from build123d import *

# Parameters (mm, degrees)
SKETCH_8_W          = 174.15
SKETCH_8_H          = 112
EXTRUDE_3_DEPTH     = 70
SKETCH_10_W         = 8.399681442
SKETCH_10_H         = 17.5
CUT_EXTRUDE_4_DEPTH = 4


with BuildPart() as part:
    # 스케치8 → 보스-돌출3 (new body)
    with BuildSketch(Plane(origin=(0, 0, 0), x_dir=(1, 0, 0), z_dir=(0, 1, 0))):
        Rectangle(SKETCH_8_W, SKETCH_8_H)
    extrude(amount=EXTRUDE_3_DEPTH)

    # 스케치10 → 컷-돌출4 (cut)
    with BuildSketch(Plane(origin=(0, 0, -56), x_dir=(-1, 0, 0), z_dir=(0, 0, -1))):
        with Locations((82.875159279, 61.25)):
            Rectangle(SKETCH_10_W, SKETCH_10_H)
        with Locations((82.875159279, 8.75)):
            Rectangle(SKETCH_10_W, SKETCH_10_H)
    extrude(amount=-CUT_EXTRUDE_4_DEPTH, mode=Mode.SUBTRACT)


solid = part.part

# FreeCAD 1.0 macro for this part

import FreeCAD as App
import Part
import Sketcher


def add_polygon(sketch, points):
    """Adds a closed chain of lines whose ends are joined by coincident constraints."""
    first, n = sketch.GeometryCount, len(points)
    for a, b in zip(points, points[1:] + points[:1]):
        sketch.addGeometry(Part.LineSegment(App.Vector(*a, 0), App.Vector(*b, 0)), False)
    for i in range(n):
        sketch.addConstraint(Sketcher.Constraint("Coincident", first + i, 2, first + (i + 1) % n, 1))

doc = App.newDocument("Part")
body = doc.addObject("PartDesign::Body", "Body")

sketch1 = doc.addObject("Sketcher::SketchObject", "Sketch")
body.addObject(sketch1)
sketch1.AttachmentSupport = (doc.XZ_Plane, [""])
sketch1.MapMode = "FlatFace"
add_polygon(sketch1, [(-87, -56), (-87, 56), (87, 56), (87, -56)])
sketch1.addConstraint(Sketcher.Constraint("Vertical", 0))
sketch1.addConstraint(Sketcher.Constraint("Horizontal", 1))
sketch1.addConstraint(Sketcher.Constraint("Vertical", 2))
sketch1.addConstraint(Sketcher.Constraint("Horizontal", 3))
sketch1.addConstraint(Sketcher.Constraint("Symmetric", 0, 2, 2, 2, -1, 1))
sketch1.addConstraint(Sketcher.Constraint("DistanceY", 0, 1, 0, 2, 112.0))
sketch1.addConstraint(Sketcher.Constraint("DistanceX", 1, 1, 1, 2, 174.15))
pad1 = doc.addObject("PartDesign::Pad", "Pad")
body.addObject(pad1)
pad1.Profile = sketch1
pad1.Length = 70
pad1.Reversed = True

sketch2 = doc.addObject("Sketcher::SketchObject", "Sketch001")
body.addObject(sketch2)
sketch2.AttachmentSupport = (doc.XY_Plane, [""])
sketch2.MapMode = "FlatFace"
sketch2.AttachmentOffset = App.Placement(App.Vector(0, 0, -56), App.Rotation())
add_polygon(sketch2, [(-79, 70), (-79, 52), (-87, 52), (-87, 70)])
add_polygon(sketch2, [(-79, 18), (-79, 0), (-87, 0), (-87, 18)])
sketch2.addConstraint(Sketcher.Constraint("Vertical", 0))
sketch2.addConstraint(Sketcher.Constraint("Horizontal", 1))
sketch2.addConstraint(Sketcher.Constraint("Vertical", 2))
sketch2.addConstraint(Sketcher.Constraint("Horizontal", 3))
sketch2.addConstraint(Sketcher.Constraint("Vertical", 4))
sketch2.addConstraint(Sketcher.Constraint("Horizontal", 5))
sketch2.addConstraint(Sketcher.Constraint("Vertical", 6))
sketch2.addConstraint(Sketcher.Constraint("Horizontal", 7))
sketch2.addConstraint(Sketcher.Constraint("PointOnObject", 4, 2, -1))
sketch2.addConstraint(Sketcher.Constraint("Vertical", 3, 2, 4, 2))
sketch2.addConstraint(Sketcher.Constraint("Vertical", 2, 2, 5, 2))
sketch2.addConstraint(Sketcher.Constraint("Equal", 2, 4))
sketch2.addConstraint(Sketcher.Constraint("DistanceY", 0, 2, 0, 1, 17.5))
sketch2.addConstraint(Sketcher.Constraint("DistanceY", -1, 1, 2, 2, 70.0))
sketch2.addConstraint(Sketcher.Constraint("DistanceX", 1, 2, -1, 1, 87.075))
sketch2.addConstraint(Sketcher.Constraint("DistanceX", 1, 2, 1, 1, 8.399681))
pocket1 = doc.addObject("PartDesign::Pocket", "Pocket")
body.addObject(pocket1)
pocket1.Profile = sketch2
pocket1.Length = 4
pocket1.Reversed = True

doc.recompute()
